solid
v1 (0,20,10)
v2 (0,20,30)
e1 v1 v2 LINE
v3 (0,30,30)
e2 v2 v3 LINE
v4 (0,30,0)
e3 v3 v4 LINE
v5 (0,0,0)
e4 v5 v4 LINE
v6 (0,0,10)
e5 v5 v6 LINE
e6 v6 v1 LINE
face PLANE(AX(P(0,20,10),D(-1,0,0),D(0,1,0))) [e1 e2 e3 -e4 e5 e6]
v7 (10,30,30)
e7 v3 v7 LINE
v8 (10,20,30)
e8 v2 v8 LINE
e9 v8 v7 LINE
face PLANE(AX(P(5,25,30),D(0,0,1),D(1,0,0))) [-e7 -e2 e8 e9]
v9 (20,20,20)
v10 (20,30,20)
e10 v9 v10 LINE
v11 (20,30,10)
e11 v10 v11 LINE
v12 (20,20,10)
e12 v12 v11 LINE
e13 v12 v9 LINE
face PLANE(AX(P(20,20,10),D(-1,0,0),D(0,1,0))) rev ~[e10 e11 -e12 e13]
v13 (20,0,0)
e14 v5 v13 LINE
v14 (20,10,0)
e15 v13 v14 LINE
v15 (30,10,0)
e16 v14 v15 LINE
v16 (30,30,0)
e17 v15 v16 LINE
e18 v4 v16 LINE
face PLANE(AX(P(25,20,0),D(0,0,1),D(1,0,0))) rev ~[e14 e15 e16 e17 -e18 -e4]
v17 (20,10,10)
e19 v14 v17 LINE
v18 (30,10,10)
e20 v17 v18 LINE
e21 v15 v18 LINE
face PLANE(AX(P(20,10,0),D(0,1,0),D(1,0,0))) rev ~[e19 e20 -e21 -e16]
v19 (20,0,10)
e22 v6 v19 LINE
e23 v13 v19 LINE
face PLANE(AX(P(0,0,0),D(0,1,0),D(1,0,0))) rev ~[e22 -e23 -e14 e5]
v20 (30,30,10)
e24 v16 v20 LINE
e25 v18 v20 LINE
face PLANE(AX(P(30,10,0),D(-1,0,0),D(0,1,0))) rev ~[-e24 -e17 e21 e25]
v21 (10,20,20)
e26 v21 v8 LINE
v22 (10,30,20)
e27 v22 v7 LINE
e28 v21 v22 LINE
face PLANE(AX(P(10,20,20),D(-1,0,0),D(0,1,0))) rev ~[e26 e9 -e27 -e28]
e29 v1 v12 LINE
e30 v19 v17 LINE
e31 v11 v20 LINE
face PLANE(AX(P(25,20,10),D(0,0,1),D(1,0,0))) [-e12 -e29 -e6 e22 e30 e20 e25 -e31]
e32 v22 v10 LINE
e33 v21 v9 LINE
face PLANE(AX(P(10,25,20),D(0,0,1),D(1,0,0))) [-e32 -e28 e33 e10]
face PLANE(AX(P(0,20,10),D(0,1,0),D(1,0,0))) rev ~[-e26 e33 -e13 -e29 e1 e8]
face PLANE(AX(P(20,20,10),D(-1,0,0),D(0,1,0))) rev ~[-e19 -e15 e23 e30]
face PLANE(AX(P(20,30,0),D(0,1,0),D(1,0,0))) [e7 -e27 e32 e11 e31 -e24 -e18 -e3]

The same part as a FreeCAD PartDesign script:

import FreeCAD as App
import Part
import Sketcher
from FreeCAD import Vector
Q = App.Units.Quantity


def add_polygon(sketch, points):
    """Adds a closed chain of lines whose ends are joined by coincident constraints."""
    first, n = sketch.GeometryCount, len(points)
    for a, b in zip(points, points[1:] + points[:1]):
        sketch.addGeometry(Part.LineSegment(App.Vector(*a, 0), App.Vector(*b, 0)), False)
    for i in range(n):
        sketch.addConstraint(Sketcher.Constraint("Coincident", first + i, 2, first + (i + 1) % n, 1))

doc = App.newDocument("Part")
body = doc.addObject("PartDesign::Body", "Body")

sketch1 = body.newObject("Sketcher::SketchObject", "Sketch")
sketch1.AttachmentSupport = (doc.getObject("XY_Plane"), [""])
sketch1.MapMode = "FlatFace"
sketch1.AttachmentOffset = App.Placement(Vector(0, 0, 20), App.Rotation())
add_polygon(sketch1, [(0, 30), (0, 20), (10, 20), (10, 30)])
sketch1.addConstraint(Sketcher.Constraint("Vertical", 0))
sketch1.addConstraint(Sketcher.Constraint("Horizontal", 1))
sketch1.addConstraint(Sketcher.Constraint("Vertical", 2))
sketch1.addConstraint(Sketcher.Constraint("Horizontal", 3))
sketch1.addConstraint(Sketcher.Constraint("PointOnObject", 0, 2, -2))
sketch1.addConstraint(Sketcher.Constraint("Equal", 3, 0))
sketch1.addConstraint(Sketcher.Constraint("DistanceX", 1, 1, 1, 2, Q("10 mm")))
sketch1.addConstraint(Sketcher.Constraint("DistanceY", -1, 1, 0, 2, Q("20 mm")))
pad1 = body.newObject("PartDesign::Pad", "Pad")
pad1.Profile = sketch1
pad1.Length = 10
body2 = doc.addObject("PartDesign::Body", "Body001")

sketch2 = body2.newObject("Sketcher::SketchObject", "Sketch001")
sketch2.AttachmentSupport = (doc.getObject("XY_Plane001"), [""])
sketch2.MapMode = "FlatFace"
sketch2.AttachmentOffset = App.Placement(Vector(0, 0, 10), App.Rotation())
add_polygon(sketch2, [(0, 30), (0, 20), (20, 20), (20, 30)])
sketch2.addConstraint(Sketcher.Constraint("Vertical", 0))
sketch2.addConstraint(Sketcher.Constraint("Horizontal", 1))
sketch2.addConstraint(Sketcher.Constraint("Vertical", 2))
sketch2.addConstraint(Sketcher.Constraint("Horizontal", 3))
sketch2.addConstraint(Sketcher.Constraint("PointOnObject", 0, 2, -2))
sketch2.addConstraint(Sketcher.Constraint("DistanceX", 1, 1, 1, 2, Q("20 mm")))
sketch2.addConstraint(Sketcher.Constraint("DistanceY", 0, 2, 0, 1, Q("10 mm")))
sketch2.addConstraint(Sketcher.Constraint("DistanceY", -1, 1, 0, 2, Q("20 mm")))
pad2 = body2.newObject("PartDesign::Pad", "Pad001")
pad2.Profile = sketch2
pad2.Length = 10
body3 = doc.addObject("PartDesign::Body", "Body002")

sketch3 = body3.newObject("Sketcher::SketchObject", "Sketch002")
sketch3.AttachmentSupport = (doc.getObject("XY_Plane002"), [""])
sketch3.MapMode = "FlatFace"
add_polygon(sketch3, [(20, 30), (20, 10), (30, 10), (30, 30)])
sketch3.addConstraint(Sketcher.Constraint("Vertical", 0))
sketch3.addConstraint(Sketcher.Constraint("Horizontal", 1))
sketch3.addConstraint(Sketcher.Constraint("Vertical", 2))
sketch3.addConstraint(Sketcher.Constraint("Horizontal", 3))
sketch3.addConstraint(Sketcher.Constraint("DistanceX", 1, 1, 1, 2, Q("10 mm")))
sketch3.addConstraint(Sketcher.Constraint("DistanceY", 0, 2, 0, 1, Q("20 mm")))
sketch3.addConstraint(Sketcher.Constraint("DistanceX", -1, 1, 0, 2, Q("20 mm")))
sketch3.addConstraint(Sketcher.Constraint("DistanceY", -1, 1, 0, 2, Q("10 mm")))
pad3 = body3.newObject("PartDesign::Pad", "Pad002")
pad3.Profile = sketch3
pad3.Length = 10
body4 = doc.addObject("PartDesign::Body", "Body003")
body4.AllowCompound = True

sketch4 = body4.newObject("Sketcher::SketchObject", "Sketch003")
sketch4.AttachmentSupport = (doc.getObject("XY_Plane003"), [""])
sketch4.MapMode = "FlatFace"
add_polygon(sketch4, [(0, 30), (0, 0), (20, 0), (20, 30)])
sketch4.addConstraint(Sketcher.Constraint("Vertical", 0))
sketch4.addConstraint(Sketcher.Constraint("Horizontal", 1))
sketch4.addConstraint(Sketcher.Constraint("Vertical", 2))
sketch4.addConstraint(Sketcher.Constraint("Horizontal", 3))
sketch4.addConstraint(Sketcher.Constraint("Coincident", 0, 2, -1, 1))
sketch4.addConstraint(Sketcher.Constraint("DistanceX", 1, 1, 1, 2, Q("20 mm")))
sketch4.addConstraint(Sketcher.Constraint("DistanceY", 0, 2, 0, 1, Q("30 mm")))
pad4 = body4.newObject("PartDesign::Pad", "Pad003")
pad4.Profile = sketch4
pad4.Length = 10
doc.recompute()

boolean = body4.newObject("PartDesign::Boolean", "Boolean")
boolean.Type = "Fuse"
boolean.addObjects([body])
doc.recompute()

boolean2 = body4.newObject("PartDesign::Boolean", "Boolean001")
boolean2.Type = "Fuse"
boolean2.addObjects([body2])
doc.recompute()

boolean3 = body4.newObject("PartDesign::Boolean", "Boolean002")
boolean3.Type = "Fuse"
boolean3.addObjects([body3])

doc.recompute()
